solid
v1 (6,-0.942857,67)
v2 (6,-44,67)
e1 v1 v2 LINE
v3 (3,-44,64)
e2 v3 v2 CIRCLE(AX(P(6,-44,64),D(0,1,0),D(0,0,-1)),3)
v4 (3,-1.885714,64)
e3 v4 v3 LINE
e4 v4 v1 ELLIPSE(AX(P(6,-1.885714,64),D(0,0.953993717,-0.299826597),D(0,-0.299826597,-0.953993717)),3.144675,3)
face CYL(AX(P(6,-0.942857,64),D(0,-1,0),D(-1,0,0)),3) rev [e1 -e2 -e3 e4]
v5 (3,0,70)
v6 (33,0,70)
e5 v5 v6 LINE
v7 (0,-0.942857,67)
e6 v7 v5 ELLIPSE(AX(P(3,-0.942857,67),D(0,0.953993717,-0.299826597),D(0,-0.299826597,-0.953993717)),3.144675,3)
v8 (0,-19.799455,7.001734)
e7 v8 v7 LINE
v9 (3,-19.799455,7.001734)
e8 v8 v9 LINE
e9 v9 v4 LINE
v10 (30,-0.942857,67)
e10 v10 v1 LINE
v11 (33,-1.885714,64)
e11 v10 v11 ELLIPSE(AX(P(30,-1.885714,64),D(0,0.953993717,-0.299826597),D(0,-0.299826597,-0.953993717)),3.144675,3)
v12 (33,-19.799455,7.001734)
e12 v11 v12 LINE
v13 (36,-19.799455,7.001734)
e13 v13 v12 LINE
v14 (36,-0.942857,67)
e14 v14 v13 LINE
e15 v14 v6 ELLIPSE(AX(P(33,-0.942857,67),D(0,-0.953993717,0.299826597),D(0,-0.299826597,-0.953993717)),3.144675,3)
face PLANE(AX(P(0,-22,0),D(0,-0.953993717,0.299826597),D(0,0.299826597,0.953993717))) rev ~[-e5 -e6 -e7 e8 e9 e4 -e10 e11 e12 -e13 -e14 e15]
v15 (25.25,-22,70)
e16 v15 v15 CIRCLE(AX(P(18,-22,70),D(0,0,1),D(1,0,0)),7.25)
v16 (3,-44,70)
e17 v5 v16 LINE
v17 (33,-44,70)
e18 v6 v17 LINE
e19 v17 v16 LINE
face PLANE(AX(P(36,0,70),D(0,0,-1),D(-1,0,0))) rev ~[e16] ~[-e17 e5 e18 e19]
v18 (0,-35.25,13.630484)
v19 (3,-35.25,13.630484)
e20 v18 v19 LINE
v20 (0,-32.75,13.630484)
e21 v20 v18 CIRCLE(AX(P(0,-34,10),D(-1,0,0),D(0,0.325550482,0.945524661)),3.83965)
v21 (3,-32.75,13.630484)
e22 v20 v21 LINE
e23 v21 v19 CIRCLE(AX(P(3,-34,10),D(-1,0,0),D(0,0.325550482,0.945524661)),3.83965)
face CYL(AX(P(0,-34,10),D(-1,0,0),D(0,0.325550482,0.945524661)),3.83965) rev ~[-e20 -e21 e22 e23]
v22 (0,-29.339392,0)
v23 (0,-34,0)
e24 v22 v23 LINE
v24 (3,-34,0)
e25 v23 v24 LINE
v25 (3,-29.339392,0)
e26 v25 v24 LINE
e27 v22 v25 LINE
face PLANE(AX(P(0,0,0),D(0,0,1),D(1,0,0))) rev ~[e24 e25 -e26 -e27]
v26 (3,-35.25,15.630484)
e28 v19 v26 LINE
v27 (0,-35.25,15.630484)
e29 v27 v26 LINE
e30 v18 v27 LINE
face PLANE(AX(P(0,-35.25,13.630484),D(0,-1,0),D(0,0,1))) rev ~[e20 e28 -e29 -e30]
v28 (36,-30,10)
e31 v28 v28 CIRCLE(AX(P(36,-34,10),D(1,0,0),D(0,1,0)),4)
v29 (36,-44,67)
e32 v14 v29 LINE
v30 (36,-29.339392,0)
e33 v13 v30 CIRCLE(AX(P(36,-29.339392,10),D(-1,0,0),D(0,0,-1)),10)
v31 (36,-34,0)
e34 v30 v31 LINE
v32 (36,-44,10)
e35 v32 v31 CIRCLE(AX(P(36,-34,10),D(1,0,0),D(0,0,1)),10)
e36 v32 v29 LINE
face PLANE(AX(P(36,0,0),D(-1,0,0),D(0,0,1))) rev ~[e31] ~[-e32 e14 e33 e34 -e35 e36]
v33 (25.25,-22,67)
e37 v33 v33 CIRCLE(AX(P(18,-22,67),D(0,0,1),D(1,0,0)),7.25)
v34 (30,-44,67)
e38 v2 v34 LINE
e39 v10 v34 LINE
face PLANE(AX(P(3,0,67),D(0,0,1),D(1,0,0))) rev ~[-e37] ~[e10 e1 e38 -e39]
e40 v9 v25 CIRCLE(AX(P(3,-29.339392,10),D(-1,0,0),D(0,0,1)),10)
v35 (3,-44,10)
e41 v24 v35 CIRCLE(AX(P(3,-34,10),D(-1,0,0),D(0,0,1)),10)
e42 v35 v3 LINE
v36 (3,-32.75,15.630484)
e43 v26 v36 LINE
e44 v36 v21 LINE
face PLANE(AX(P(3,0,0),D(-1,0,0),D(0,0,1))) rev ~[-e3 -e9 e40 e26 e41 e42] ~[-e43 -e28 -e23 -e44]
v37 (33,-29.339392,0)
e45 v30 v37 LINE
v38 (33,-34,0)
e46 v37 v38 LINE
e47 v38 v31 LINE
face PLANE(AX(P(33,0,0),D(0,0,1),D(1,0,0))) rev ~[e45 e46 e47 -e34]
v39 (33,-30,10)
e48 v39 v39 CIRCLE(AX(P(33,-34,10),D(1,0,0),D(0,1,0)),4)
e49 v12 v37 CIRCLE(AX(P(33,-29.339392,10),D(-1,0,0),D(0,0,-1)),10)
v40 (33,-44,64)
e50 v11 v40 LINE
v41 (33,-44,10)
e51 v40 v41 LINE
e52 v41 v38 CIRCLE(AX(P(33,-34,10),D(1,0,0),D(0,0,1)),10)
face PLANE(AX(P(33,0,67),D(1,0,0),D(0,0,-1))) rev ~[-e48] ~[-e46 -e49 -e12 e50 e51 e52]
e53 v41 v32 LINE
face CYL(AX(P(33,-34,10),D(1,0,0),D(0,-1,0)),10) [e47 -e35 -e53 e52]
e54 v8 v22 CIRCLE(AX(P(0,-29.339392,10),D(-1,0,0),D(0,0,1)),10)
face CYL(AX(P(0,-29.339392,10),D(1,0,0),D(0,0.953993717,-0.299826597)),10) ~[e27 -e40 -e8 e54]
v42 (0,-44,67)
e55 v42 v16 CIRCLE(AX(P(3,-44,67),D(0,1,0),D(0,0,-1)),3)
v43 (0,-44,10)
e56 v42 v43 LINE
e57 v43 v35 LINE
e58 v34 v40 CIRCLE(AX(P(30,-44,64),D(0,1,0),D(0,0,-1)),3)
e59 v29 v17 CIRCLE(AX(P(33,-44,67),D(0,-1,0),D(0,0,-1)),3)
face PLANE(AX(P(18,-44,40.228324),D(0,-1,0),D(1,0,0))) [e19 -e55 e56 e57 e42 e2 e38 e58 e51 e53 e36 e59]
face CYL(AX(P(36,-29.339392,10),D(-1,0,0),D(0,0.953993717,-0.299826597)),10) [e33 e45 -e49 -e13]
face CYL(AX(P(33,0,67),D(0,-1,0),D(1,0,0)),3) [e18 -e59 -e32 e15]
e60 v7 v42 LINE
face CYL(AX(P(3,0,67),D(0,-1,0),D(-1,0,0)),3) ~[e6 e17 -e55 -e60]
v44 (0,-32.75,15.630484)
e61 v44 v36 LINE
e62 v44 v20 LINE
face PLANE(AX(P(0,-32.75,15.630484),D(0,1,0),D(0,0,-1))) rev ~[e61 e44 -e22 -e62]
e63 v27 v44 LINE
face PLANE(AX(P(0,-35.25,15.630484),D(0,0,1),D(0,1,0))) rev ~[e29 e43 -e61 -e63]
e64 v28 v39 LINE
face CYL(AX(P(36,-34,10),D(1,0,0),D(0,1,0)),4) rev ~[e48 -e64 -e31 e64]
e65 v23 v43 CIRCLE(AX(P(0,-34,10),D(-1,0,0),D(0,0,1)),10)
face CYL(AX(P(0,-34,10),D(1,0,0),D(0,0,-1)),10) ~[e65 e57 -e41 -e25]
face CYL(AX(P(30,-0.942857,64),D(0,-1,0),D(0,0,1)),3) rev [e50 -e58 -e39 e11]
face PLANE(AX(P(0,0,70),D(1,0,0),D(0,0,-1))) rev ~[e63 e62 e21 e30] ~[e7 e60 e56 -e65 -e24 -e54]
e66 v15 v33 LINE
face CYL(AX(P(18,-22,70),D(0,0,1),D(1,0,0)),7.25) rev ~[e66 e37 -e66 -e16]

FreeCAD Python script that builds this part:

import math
import FreeCAD as App
import Part
import Sketcher

V = App.Vector
Q = App.Units.Quantity


def edges_at(feature, points):
    """Names of the edges that pass closest to the given points."""
    edges = feature.Shape.Edges
    near = lambda p: min(range(len(edges)), key=lambda i: edges[i].distToShape(Part.Vertex(*p))[0])
    return sorted({f"Edge{near(p) + 1}" for p in points})

doc = App.newDocument("Part")
body = doc.addObject("PartDesign::Body", "Body")

# Sketch on XZ plane
sketch1 = body.newObject("Sketcher::SketchObject", "Sketch")
sketch1.AttachmentSupport = (doc.getObject("XZ_Plane"), [""])
sketch1.MapMode = "FlatFace"
sketch1.addGeometry(Part.LineSegment(V(0, 70, 0), V(0, 0, 0)), False)
sketch1.addGeometry(Part.LineSegment(V(0, 0, 0), V(3, 0, 0)), False)
sketch1.addGeometry(Part.LineSegment(V(3, 0, 0), V(3, 67, 0)), False)
sketch1.addGeometry(Part.LineSegment(V(3, 67, 0), V(33, 67, 0)), False)
sketch1.addGeometry(Part.LineSegment(V(33, 67, 0), V(33, 0, 0)), False)
sketch1.addGeometry(Part.LineSegment(V(33, 0, 0), V(36, 0, 0)), False)
sketch1.addGeometry(Part.LineSegment(V(36, 0, 0), V(36, 70, 0)), False)
sketch1.addGeometry(Part.LineSegment(V(36, 70, 0), V(0, 70, 0)), False)
sketch1.addConstraint(Sketcher.Constraint("Coincident", 0, 2, 1, 1))
sketch1.addConstraint(Sketcher.Constraint("Coincident", 1, 2, 2, 1))
sketch1.addConstraint(Sketcher.Constraint("Coincident", 2, 2, 3, 1))
sketch1.addConstraint(Sketcher.Constraint("Coincident", 3, 2, 4, 1))
sketch1.addConstraint(Sketcher.Constraint("Coincident", 4, 2, 5, 1))
sketch1.addConstraint(Sketcher.Constraint("Coincident", 5, 2, 6, 1))
sketch1.addConstraint(Sketcher.Constraint("Coincident", 6, 2, 7, 1))
sketch1.addConstraint(Sketcher.Constraint("Coincident", 7, 2, 0, 1))
sketch1.addConstraint(Sketcher.Constraint("Vertical", 0))
sketch1.addConstraint(Sketcher.Constraint("Horizontal", 1))
sketch1.addConstraint(Sketcher.Constraint("Vertical", 2))
sketch1.addConstraint(Sketcher.Constraint("Horizontal", 3))
sketch1.addConstraint(Sketcher.Constraint("Vertical", 4))
sketch1.addConstraint(Sketcher.Constraint("Horizontal", 5))
sketch1.addConstraint(Sketcher.Constraint("Vertical", 6))
sketch1.addConstraint(Sketcher.Constraint("Horizontal", 7))
sketch1.addConstraint(Sketcher.Constraint("Coincident", 0, 2, -1, 1))
sketch1.addConstraint(Sketcher.Constraint("PointOnObject", 4, 2, -1))
sketch1.addConstraint(Sketcher.Constraint("Equal", 1, 5))
sketch1.addConstraint(Sketcher.Constraint("DistanceX", 1, 1, 1, 2, Q("3 mm")))
sketch1.addConstraint(Sketcher.Constraint("DistanceX", 3, 1, 3, 2, Q("30 mm")))
sketch1.addConstraint(Sketcher.Constraint("DistanceY", 0, 2, 0, 1, Q("70 mm")))
sketch1.addConstraint(Sketcher.Constraint("DistanceY", 2, 1, 2, 2, Q("67 mm")))
pad1 = body.newObject("PartDesign::Pad", "Pad")
pad1.Profile = sketch1
pad1.Length = 44

# Sketch on YZ plane
sketch2 = body.newObject("Sketcher::SketchObject", "Sketch001")
sketch2.AttachmentSupport = (doc.getObject("YZ_Plane"), [""])
sketch2.MapMode = "FlatFace"
sketch2.AttachmentOffset = App.Placement(V(0, 0, 36), App.Rotation())
sketch2.addGeometry(Part.Circle(V(-34, 10, 0), V(0, 0, 1), 4), False)
sketch2.addGeometry(Part.LineSegment(V(0, 0, 0), V(0, 70, 0)), False)
sketch2.addGeometry(Part.LineSegment(V(0, 70, 0), V(-22, 0, 0)), False)
sketch2.addGeometry(Part.LineSegment(V(-22, 0, 0), V(0, 0, 0)), False)
sketch2.addConstraint(Sketcher.Constraint("Coincident", 1, 2, 2, 1))
sketch2.addConstraint(Sketcher.Constraint("Coincident", 2, 2, 3, 1))
sketch2.addConstraint(Sketcher.Constraint("Coincident", 3, 2, 1, 1))
sketch2.addConstraint(Sketcher.Constraint("Vertical", 1))
sketch2.addConstraint(Sketcher.Constraint("Horizontal", 3))
sketch2.addConstraint(Sketcher.Constraint("Coincident", 3, 2, -1, 1))
sketch2.addConstraint(Sketcher.Constraint("Diameter", 0, Q("8 mm")))
sketch2.addConstraint(Sketcher.Constraint("DistanceX", 3, 1, 3, 2, Q("22 mm")))
sketch2.addConstraint(Sketcher.Constraint("DistanceY", 1, 1, 1, 2, Q("70 mm")))
sketch2.addConstraint(Sketcher.Constraint("DistanceX", 0, 3, -1, 1, Q("34 mm")))
sketch2.addConstraint(Sketcher.Constraint("DistanceY", -1, 1, 0, 3, Q("10 mm")))
pocket1 = body.newObject("PartDesign::Pocket", "Pocket")
pocket1.Profile = sketch2
pocket1.Length = 25

# Sketch on YZ plane
sketch3 = body.newObject("Sketcher::SketchObject", "Sketch002")
sketch3.AttachmentSupport = (doc.getObject("YZ_Plane"), [""])
sketch3.MapMode = "FlatFace"
sketch3.addGeometry(Part.LineSegment(V(-22, 0, 0), V(0, 70, 0)), False)
sketch3.addGeometry(Part.LineSegment(V(0, 70, 0), V(0, 0, 0)), False)
sketch3.addGeometry(Part.LineSegment(V(0, 0, 0), V(-22, 0, 0)), False)
sketch3.addGeometry(Part.LineSegment(V(-32.75, 15.630484, 0), V(-32.75, 13.630484, 0)), False)
sketch3.addGeometry(Part.ArcOfCircle(Part.Circle(V(-34, 10, 0), V(0, 0, 1), 3.83965), math.radians(108.998929), math.radians(431.001071)), False)
sketch3.addGeometry(Part.LineSegment(V(-35.25, 13.630484, 0), V(-35.25, 15.630484, 0)), False)
sketch3.addGeometry(Part.LineSegment(V(-35.25, 15.630484, 0), V(-32.75, 15.630484, 0)), False)
sketch3.addConstraint(Sketcher.Constraint("Coincident", 0, 2, 1, 1))
sketch3.addConstraint(Sketcher.Constraint("Coincident", 1, 2, 2, 1))
sketch3.addConstraint(Sketcher.Constraint("Coincident", 2, 2, 0, 1))
sketch3.addConstraint(Sketcher.Constraint("Coincident", 3, 2, 4, 2))
sketch3.addConstraint(Sketcher.Constraint("Coincident", 4, 1, 5, 1))
sketch3.addConstraint(Sketcher.Constraint("Coincident", 5, 2, 6, 1))
sketch3.addConstraint(Sketcher.Constraint("Coincident", 6, 2, 3, 1))
sketch3.addConstraint(Sketcher.Constraint("Vertical", 1))
sketch3.addConstraint(Sketcher.Constraint("Horizontal", 2))
sketch3.addConstraint(Sketcher.Constraint("Vertical", 3))
sketch3.addConstraint(Sketcher.Constraint("Vertical", 5))
sketch3.addConstraint(Sketcher.Constraint("Horizontal", 6))
sketch3.addConstraint(Sketcher.Constraint("Coincident", 1, 2, -1, 1))
sketch3.addConstraint(Sketcher.Constraint("Horizontal", 3, 2, 4, 1))
sketch3.addConstraint(Sketcher.Constraint("DistanceX", 2, 2, 2, 1, Q("22 mm")))
sketch3.addConstraint(Sketcher.Constraint("DistanceY", 1, 2, 1, 1, Q("70 mm")))
sketch3.addConstraint(Sketcher.Constraint("DistanceY", 3, 2, 3, 1, Q("2 mm")))
sketch3.addConstraint(Sketcher.Constraint("DistanceX", 6, 1, 6, 2, Q("2.5 mm")))
sketch3.addConstraint(Sketcher.Constraint("DistanceX", 4, 3, -1, 1, Q("34 mm")))
sketch3.addConstraint(Sketcher.Constraint("DistanceY", -1, 1, 4, 3, Q("10 mm")))
sketch3.addConstraint(Sketcher.Constraint("Radius", 4, Q("3.83965 mm")))
pocket2 = body.newObject("PartDesign::Pocket", "Pocket001")
pocket2.Profile = sketch3
pocket2.Length = 25
pocket2.Reversed = True
doc.recompute()

fillet = body.newObject("PartDesign::Fillet", "Fillet")
fillet.Base = (pocket2, edges_at(pocket2, [
    (33, -22.471, 67),
    (3, -22.471, 67),
    (36, -22, 70),
    (0, -22, 70),
]))
fillet.Radius = 3
doc.recompute()

fillet2 = body.newObject("PartDesign::Fillet", "Fillet001")
fillet2.Base = (fillet, edges_at(fillet, [
    (1.5, -22, 0),
    (1.5, -44, 0),
    (34.5, -44, 0),
    (34.5, -22, 0),
]))
fillet2.Radius = 10

# Sketch on XY plane
sketch4 = body.newObject("Sketcher::SketchObject", "Sketch003")
sketch4.AttachmentSupport = (doc.getObject("XY_Plane"), [""])
sketch4.MapMode = "FlatFace"
sketch4.AttachmentOffset = App.Placement(V(0, 0, 70), App.Rotation())
sketch4.addGeometry(Part.Circle(V(18, -22, 0), V(0, 0, 1), 7.25), False)
sketch4.addConstraint(Sketcher.Constraint("Diameter", 0, Q("14.5 mm")))
sketch4.addConstraint(Sketcher.Constraint("DistanceX", -1, 1, 0, 3, Q("18 mm")))
sketch4.addConstraint(Sketcher.Constraint("DistanceY", 0, 3, -1, 1, Q("22 mm")))
pocket3 = body.newObject("PartDesign::Pocket", "Pocket002")
pocket3.Profile = sketch4
pocket3.Length = 25

doc.recompute()
